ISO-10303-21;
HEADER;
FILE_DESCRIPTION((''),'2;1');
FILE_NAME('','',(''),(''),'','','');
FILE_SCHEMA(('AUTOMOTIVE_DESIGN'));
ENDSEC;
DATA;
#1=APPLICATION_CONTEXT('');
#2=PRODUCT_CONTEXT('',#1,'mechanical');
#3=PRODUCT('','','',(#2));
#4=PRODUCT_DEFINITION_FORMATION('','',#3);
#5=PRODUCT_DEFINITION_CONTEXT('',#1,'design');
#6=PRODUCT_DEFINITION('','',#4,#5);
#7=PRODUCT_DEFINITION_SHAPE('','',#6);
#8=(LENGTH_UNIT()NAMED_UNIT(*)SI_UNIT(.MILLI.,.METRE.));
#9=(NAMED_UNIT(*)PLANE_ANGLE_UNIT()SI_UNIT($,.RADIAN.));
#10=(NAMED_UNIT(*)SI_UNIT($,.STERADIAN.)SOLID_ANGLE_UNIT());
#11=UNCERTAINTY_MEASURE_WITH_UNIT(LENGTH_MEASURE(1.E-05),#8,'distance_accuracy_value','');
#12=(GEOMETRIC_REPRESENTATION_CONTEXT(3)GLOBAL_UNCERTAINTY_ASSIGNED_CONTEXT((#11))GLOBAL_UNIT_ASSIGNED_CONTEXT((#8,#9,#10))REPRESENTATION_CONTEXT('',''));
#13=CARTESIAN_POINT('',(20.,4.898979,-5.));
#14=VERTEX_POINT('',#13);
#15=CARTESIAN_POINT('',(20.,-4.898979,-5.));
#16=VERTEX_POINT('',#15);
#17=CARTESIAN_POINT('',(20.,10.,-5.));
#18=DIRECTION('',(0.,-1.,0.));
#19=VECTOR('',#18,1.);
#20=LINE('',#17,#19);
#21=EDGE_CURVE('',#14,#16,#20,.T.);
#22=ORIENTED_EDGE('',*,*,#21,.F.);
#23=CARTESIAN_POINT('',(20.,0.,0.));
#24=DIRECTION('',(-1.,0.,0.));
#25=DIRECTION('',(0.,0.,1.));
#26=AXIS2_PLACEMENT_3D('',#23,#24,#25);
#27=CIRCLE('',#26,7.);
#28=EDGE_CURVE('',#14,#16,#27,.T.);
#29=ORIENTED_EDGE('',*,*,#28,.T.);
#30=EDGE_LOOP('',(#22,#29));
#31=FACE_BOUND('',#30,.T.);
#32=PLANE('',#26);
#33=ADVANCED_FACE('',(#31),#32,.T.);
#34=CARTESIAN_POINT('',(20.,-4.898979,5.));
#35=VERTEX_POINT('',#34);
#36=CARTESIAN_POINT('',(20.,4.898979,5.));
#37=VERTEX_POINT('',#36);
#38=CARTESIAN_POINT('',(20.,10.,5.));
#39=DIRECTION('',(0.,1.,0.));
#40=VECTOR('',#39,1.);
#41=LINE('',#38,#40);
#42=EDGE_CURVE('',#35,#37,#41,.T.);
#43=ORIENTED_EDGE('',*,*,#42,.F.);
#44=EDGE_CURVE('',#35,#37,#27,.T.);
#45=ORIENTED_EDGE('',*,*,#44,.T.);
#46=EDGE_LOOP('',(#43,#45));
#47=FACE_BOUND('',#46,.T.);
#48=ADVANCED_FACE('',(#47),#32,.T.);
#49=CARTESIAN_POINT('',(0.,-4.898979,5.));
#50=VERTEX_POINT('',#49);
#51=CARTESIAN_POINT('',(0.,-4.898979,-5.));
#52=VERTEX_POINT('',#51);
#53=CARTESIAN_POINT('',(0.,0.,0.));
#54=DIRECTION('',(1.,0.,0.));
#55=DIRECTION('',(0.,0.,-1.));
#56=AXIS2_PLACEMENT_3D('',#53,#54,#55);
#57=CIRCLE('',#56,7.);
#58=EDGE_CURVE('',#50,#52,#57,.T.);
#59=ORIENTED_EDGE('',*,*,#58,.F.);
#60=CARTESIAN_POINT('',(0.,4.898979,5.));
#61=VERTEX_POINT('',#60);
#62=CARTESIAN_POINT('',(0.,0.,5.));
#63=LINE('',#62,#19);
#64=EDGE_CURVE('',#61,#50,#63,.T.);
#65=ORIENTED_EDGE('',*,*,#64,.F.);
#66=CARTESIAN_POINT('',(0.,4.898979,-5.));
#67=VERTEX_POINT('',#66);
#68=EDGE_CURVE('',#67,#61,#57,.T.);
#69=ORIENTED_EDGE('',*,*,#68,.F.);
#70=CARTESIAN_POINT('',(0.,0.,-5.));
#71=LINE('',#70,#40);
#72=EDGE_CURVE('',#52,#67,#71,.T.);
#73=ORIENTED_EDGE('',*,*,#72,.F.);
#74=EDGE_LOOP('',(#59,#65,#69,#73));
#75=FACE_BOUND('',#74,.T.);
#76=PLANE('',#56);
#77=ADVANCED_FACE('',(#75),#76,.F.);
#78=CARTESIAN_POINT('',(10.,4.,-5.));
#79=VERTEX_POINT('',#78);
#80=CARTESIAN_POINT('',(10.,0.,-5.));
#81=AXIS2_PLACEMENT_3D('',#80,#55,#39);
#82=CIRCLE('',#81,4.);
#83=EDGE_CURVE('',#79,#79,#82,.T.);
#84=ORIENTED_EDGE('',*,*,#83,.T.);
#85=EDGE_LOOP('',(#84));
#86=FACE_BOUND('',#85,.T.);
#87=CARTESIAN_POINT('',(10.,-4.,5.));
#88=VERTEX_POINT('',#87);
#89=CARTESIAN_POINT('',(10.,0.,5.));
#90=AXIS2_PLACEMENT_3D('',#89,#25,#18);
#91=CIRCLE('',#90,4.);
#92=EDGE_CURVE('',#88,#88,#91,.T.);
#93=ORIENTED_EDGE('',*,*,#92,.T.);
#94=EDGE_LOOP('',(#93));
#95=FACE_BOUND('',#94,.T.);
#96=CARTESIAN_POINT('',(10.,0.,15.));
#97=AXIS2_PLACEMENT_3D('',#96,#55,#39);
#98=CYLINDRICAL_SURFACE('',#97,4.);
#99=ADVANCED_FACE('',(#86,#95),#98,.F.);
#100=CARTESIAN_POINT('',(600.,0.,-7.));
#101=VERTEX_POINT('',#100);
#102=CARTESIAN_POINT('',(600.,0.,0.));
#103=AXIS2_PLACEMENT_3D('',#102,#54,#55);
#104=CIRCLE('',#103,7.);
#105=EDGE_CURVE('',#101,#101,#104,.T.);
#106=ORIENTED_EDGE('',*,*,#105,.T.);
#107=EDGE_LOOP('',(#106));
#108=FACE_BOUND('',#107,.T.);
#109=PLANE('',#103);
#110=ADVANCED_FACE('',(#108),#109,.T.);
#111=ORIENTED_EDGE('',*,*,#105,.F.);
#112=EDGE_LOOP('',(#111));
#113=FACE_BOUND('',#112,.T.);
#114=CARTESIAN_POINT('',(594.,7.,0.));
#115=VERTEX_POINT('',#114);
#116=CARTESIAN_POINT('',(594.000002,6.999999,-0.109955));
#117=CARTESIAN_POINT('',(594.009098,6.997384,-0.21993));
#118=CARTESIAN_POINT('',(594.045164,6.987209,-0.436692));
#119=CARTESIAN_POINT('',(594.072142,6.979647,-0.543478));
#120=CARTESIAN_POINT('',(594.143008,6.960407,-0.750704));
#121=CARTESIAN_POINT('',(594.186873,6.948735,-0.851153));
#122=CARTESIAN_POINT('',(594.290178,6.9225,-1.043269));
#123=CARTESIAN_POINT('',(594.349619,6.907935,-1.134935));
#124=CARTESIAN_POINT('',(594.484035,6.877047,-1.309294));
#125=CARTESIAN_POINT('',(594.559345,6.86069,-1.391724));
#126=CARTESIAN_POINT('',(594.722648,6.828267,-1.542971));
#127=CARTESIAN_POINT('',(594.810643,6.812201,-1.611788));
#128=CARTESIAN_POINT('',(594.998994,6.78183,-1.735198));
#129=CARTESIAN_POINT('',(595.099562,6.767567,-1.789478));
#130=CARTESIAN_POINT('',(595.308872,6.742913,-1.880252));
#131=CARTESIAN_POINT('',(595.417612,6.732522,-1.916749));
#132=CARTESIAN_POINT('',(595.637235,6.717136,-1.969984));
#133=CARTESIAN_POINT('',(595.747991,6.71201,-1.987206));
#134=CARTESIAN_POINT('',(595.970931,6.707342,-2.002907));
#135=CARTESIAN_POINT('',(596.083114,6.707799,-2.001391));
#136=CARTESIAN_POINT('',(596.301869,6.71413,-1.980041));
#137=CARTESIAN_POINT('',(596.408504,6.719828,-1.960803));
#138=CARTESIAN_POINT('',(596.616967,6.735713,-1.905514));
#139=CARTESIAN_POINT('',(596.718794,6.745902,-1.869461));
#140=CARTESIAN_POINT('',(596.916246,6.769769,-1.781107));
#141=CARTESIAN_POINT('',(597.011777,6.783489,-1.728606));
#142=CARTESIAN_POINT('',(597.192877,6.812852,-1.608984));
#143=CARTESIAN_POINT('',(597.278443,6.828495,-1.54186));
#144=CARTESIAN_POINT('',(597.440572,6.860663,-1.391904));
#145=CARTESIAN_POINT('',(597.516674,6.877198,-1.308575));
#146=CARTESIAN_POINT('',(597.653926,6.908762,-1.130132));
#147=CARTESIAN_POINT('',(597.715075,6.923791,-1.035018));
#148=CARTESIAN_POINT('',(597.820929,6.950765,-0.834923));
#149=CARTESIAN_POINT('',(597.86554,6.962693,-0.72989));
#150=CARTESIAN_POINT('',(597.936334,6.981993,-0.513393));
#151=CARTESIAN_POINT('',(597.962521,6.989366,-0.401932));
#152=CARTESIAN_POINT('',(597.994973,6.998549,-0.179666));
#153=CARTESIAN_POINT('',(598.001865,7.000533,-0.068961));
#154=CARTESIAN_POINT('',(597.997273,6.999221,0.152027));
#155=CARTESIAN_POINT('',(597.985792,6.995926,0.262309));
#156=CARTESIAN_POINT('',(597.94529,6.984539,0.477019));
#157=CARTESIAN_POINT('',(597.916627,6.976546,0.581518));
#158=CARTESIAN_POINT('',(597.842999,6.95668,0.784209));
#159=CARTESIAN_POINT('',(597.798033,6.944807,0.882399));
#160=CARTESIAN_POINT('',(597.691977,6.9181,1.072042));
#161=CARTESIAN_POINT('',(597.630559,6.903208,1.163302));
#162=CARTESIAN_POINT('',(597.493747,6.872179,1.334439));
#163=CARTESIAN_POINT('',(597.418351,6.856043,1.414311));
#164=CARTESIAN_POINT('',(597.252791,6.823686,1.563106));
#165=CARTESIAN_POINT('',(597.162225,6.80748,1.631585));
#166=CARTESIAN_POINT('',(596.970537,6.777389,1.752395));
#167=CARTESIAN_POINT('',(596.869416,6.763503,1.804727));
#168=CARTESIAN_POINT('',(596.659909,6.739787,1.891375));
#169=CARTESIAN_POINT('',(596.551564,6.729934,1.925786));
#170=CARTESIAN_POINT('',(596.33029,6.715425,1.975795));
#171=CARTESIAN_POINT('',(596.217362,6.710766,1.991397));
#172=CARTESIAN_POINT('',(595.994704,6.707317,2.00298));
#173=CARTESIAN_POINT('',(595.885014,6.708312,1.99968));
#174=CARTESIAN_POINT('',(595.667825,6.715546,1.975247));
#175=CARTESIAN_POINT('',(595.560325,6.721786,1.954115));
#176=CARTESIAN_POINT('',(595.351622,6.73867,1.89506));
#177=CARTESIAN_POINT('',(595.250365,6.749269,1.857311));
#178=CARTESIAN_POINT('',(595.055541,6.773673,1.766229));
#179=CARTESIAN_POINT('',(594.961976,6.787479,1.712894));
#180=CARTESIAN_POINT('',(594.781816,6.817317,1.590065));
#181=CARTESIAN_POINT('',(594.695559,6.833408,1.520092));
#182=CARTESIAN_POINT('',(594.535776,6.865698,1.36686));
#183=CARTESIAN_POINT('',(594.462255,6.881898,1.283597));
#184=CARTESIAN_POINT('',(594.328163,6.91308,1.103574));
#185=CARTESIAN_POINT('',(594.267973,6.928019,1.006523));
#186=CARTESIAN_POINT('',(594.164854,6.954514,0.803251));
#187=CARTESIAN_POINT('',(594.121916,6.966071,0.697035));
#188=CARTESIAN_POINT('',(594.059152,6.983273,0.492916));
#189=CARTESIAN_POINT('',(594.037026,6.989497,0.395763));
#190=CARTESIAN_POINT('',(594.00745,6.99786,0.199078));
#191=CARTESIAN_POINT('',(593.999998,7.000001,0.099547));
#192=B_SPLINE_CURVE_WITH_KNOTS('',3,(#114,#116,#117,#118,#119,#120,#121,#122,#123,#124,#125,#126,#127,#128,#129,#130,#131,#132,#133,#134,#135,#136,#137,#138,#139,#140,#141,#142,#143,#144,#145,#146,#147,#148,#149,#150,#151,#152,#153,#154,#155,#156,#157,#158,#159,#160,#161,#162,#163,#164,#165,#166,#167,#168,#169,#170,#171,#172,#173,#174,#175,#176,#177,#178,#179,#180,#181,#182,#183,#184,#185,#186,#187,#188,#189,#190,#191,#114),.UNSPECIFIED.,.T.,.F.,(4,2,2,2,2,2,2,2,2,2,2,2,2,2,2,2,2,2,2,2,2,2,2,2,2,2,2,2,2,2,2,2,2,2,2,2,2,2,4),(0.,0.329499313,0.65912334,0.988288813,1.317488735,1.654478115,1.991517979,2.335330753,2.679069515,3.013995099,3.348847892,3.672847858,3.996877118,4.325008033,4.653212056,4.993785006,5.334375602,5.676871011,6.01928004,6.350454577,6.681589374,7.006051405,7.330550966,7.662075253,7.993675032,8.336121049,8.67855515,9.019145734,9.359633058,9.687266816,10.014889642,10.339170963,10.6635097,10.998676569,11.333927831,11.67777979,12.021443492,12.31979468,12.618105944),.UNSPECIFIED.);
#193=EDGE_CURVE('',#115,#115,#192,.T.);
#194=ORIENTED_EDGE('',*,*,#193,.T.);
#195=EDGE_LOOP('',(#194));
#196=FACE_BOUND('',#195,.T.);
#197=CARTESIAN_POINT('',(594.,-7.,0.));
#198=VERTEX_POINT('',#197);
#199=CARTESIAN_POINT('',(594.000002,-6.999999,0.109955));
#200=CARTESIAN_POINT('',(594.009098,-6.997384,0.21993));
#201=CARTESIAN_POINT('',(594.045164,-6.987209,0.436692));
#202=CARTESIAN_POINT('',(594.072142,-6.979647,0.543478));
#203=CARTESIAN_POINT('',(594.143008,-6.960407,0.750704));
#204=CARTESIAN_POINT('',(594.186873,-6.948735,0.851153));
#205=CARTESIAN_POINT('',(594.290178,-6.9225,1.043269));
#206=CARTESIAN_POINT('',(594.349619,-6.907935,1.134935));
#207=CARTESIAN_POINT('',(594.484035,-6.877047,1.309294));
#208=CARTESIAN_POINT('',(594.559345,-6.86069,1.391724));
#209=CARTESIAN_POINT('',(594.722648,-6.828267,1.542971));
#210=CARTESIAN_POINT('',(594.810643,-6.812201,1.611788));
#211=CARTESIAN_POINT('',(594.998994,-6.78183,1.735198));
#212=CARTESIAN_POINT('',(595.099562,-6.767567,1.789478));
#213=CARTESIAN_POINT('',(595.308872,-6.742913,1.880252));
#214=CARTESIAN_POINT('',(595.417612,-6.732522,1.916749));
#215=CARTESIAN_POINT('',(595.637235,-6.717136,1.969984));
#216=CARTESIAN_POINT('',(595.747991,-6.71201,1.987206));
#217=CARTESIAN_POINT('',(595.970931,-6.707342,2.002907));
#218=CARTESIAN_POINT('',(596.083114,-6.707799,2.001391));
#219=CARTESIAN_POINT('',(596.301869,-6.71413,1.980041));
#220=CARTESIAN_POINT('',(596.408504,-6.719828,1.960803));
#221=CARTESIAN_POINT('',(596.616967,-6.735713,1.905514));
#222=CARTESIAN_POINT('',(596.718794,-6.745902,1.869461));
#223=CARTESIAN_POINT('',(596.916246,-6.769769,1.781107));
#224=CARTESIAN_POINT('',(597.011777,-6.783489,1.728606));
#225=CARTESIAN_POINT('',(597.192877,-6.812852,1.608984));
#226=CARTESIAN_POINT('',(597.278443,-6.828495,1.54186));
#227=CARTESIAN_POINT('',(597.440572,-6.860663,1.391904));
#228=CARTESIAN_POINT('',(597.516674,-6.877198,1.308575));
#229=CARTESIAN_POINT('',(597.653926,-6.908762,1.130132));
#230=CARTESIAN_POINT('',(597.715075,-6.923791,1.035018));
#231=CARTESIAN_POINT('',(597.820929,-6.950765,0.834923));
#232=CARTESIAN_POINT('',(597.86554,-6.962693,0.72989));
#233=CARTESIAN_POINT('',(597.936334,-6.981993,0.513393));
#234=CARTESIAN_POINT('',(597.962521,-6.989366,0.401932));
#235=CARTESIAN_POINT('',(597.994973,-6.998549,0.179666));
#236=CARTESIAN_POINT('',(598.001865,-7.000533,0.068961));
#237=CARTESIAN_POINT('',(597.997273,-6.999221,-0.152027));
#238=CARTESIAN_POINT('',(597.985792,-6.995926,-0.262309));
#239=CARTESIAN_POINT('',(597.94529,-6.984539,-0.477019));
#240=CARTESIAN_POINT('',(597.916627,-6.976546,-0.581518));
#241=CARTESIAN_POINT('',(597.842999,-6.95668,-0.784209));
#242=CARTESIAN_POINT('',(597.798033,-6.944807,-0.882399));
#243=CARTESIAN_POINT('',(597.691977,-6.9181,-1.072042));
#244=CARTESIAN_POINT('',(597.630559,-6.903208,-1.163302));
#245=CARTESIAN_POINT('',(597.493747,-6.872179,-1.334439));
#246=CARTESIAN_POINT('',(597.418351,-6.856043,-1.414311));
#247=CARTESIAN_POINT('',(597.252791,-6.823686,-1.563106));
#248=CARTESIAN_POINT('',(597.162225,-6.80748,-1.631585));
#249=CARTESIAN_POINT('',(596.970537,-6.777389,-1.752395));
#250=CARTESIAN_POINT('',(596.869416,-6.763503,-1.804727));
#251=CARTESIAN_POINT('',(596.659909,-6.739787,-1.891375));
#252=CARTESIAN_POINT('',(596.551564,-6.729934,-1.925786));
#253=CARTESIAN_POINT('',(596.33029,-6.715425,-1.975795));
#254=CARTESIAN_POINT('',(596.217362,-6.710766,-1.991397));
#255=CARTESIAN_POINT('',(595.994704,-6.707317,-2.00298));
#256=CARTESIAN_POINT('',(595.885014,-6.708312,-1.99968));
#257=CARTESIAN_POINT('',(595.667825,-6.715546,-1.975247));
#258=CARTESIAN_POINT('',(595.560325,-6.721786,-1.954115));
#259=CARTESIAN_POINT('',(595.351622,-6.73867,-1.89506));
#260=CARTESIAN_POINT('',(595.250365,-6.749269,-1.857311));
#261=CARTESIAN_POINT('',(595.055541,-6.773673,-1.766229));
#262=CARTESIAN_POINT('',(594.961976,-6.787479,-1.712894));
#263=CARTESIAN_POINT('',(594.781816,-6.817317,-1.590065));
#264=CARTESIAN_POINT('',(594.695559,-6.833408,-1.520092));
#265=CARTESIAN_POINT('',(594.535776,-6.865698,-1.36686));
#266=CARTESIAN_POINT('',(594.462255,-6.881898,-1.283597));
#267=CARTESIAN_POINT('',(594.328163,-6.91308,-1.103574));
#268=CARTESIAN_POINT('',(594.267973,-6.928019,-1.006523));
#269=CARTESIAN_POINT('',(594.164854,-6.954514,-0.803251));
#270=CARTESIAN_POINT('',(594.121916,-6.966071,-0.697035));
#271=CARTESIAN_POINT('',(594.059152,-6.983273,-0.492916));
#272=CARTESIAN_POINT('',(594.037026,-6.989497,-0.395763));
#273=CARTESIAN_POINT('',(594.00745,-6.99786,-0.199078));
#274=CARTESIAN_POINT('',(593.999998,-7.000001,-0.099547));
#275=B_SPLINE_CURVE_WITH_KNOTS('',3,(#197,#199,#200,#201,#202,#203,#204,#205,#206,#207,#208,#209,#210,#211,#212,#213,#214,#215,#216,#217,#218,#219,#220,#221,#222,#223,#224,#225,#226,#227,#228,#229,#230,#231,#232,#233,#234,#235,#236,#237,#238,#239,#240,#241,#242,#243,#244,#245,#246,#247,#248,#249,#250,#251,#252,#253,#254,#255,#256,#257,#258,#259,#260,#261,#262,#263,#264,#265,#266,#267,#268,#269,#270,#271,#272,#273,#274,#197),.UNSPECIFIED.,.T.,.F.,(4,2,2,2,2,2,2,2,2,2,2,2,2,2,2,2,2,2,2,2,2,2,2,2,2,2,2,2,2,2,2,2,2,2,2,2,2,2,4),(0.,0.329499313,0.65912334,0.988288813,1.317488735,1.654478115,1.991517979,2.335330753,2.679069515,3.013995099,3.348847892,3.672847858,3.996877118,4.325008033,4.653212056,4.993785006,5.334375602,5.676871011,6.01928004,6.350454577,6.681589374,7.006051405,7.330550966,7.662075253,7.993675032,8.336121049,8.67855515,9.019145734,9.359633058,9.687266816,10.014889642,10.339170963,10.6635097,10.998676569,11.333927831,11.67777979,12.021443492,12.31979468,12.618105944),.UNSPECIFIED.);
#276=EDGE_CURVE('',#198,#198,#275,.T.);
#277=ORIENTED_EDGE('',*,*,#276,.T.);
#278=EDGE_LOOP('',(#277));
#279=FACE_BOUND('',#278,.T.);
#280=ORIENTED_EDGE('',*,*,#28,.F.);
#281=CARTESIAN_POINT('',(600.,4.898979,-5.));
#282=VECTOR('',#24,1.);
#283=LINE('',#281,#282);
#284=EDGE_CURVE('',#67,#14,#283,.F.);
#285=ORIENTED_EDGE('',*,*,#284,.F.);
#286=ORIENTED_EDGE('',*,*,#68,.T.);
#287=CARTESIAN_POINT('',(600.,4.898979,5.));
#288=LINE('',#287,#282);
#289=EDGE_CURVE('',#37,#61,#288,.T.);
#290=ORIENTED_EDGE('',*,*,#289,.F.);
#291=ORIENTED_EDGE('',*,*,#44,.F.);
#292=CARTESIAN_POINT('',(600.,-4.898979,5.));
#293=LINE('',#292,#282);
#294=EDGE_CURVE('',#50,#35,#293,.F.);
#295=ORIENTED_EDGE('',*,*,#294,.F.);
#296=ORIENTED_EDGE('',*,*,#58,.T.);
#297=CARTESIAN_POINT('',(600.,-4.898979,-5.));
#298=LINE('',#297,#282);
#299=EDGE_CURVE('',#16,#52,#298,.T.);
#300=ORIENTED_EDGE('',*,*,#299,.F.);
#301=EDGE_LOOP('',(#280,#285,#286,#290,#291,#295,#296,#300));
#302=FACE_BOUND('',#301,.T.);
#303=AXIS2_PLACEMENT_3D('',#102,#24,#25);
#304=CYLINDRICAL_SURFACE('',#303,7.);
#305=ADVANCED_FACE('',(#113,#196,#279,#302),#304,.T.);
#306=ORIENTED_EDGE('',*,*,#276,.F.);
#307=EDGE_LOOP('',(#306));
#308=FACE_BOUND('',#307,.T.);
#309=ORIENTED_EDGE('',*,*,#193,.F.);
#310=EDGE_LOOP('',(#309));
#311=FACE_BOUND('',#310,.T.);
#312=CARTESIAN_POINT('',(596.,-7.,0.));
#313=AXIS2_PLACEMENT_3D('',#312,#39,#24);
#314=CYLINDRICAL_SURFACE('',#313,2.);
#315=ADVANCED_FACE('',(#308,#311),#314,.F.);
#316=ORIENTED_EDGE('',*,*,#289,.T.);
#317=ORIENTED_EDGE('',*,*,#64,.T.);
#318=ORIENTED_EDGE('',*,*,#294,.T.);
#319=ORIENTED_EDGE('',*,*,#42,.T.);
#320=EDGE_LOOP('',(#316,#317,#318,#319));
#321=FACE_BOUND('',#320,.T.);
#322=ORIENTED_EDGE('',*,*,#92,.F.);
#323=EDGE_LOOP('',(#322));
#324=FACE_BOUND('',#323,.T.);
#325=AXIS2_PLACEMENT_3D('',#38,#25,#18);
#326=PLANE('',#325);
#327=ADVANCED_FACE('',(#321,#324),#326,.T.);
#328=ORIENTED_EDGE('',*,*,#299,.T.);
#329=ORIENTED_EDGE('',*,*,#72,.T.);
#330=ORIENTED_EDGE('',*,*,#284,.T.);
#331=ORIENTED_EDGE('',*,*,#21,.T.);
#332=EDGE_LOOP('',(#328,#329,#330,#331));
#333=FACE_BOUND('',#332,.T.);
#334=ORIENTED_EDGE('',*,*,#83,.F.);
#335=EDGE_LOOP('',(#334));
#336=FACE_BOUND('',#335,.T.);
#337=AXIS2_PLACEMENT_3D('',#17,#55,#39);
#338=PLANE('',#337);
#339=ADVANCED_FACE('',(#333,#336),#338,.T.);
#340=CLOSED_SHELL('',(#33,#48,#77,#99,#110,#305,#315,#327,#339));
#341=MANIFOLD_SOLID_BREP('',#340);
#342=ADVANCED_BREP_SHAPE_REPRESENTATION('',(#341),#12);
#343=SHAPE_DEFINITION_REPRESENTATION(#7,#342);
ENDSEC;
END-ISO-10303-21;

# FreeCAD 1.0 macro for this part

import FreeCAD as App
import Part
import Sketcher


def add_polygon(sketch, points):
    """Adds a closed chain of lines whose ends are joined by coincident constraints."""
    first, n = sketch.GeometryCount, len(points)
    for a, b in zip(points, points[1:] + points[:1]):
        sketch.addGeometry(Part.LineSegment(App.Vector(*a, 0), App.Vector(*b, 0)), False)
    for i in range(n):
        sketch.addConstraint(Sketcher.Constraint("Coincident", first + i, 2, first + (i + 1) % n, 1))

doc = App.newDocument("Part")
body = doc.addObject("PartDesign::Body", "Body")

sketch1 = body.newObject("Sketcher::SketchObject", "Sketch")
sketch1.AttachmentSupport = (doc.getObject("YZ_Plane"), [""])
sketch1.MapMode = "FlatFace"
sketch1.addGeometry(Part.Circle(App.Vector(0, 0, 0), App.Vector(0, 0, 1), 7), False)
sketch1.addConstraint(Sketcher.Constraint("Coincident", 0, 3, -1, 1))
sketch1.addConstraint(Sketcher.Constraint("Diameter", 0, 14.0))
pad1 = body.newObject("PartDesign::Pad", "Pad")
pad1.Profile = sketch1
pad1.Length = 600

sketch2 = body.newObject("Sketcher::SketchObject", "Sketch001")
sketch2.AttachmentSupport = (doc.getObject("YZ_Plane"), [""])
sketch2.MapMode = "FlatFace"
add_polygon(sketch2, [(68.033, -68.033), (-68.033, -68.033), (-68.033, 68.033), (68.033, 68.033)])
add_polygon(sketch2, [(-10, 5), (-10, -5), (10, -5), (10, 5)])
sketch2.addConstraint(Sketcher.Constraint("Horizontal", 0))
sketch2.addConstraint(Sketcher.Constraint("Vertical", 1))
sketch2.addConstraint(Sketcher.Constraint("Horizontal", 2))
sketch2.addConstraint(Sketcher.Constraint("Vertical", 3))
sketch2.addConstraint(Sketcher.Constraint("Vertical", 4))
sketch2.addConstraint(Sketcher.Constraint("Horizontal", 5))
sketch2.addConstraint(Sketcher.Constraint("Vertical", 6))
sketch2.addConstraint(Sketcher.Constraint("Horizontal", 7))
sketch2.addConstraint(Sketcher.Constraint("Symmetric", 0, 2, 2, 2, -1, 1))
sketch2.addConstraint(Sketcher.Constraint("Symmetric", 4, 2, 6, 2, -1, 1))
sketch2.addConstraint(Sketcher.Constraint("Equal", 2, 1))
sketch2.addConstraint(Sketcher.Constraint("DistanceX", 5, 1, 5, 2, 20.0))
sketch2.addConstraint(Sketcher.Constraint("DistanceY", 4, 2, 4, 1, 10.0))
sketch2.addConstraint(Sketcher.Constraint("DistanceX", 0, 2, 0, 1, 136.066))
pocket1 = body.newObject("PartDesign::Pocket", "Pocket")
pocket1.Profile = sketch2
pocket1.Length = 20
pocket1.Reversed = True

sketch3 = body.newObject("Sketcher::SketchObject", "Sketch002")
sketch3.AttachmentSupport = (doc.getObject("XY_Plane"), [""])
sketch3.MapMode = "FlatFace"
sketch3.AttachmentOffset = App.Placement(App.Vector(0, 0, -5), App.Rotation())
sketch3.addGeometry(Part.Circle(App.Vector(10, 0, 0), App.Vector(0, 0, 1), 4), False)
sketch3.addConstraint(Sketcher.Constraint("PointOnObject", 0, 3, -1))
sketch3.addConstraint(Sketcher.Constraint("Diameter", 0, 8.0))
sketch3.addConstraint(Sketcher.Constraint("DistanceX", -1, 1, 0, 3, 10.0))
pocket2 = body.newObject("PartDesign::Pocket", "Pocket001")
pocket2.Profile = sketch3
pocket2.Length = 20
pocket2.Reversed = True

sketch4 = body.newObject("Sketcher::SketchObject", "Sketch003")
sketch4.AttachmentSupport = (doc.getObject("XZ_Plane"), [""])
sketch4.MapMode = "FlatFace"
sketch4.AttachmentOffset = App.Placement(App.Vector(0, 0, -7), App.Rotation())
sketch4.addGeometry(Part.Circle(App.Vector(596.000001, 0, 0), App.Vector(0, 0, 1), 2), False)
sketch4.addConstraint(Sketcher.Constraint("PointOnObject", 0, 3, -1))
sketch4.addConstraint(Sketcher.Constraint("Diameter", 0, 4.0))
sketch4.addConstraint(Sketcher.Constraint("DistanceX", -1, 1, 0, 3, 596.000001))
pocket3 = body.newObject("PartDesign::Pocket", "Pocket002")
pocket3.Profile = sketch4
pocket3.Type = "ThroughAll"
pocket3.Reversed = True

doc.recompute()
